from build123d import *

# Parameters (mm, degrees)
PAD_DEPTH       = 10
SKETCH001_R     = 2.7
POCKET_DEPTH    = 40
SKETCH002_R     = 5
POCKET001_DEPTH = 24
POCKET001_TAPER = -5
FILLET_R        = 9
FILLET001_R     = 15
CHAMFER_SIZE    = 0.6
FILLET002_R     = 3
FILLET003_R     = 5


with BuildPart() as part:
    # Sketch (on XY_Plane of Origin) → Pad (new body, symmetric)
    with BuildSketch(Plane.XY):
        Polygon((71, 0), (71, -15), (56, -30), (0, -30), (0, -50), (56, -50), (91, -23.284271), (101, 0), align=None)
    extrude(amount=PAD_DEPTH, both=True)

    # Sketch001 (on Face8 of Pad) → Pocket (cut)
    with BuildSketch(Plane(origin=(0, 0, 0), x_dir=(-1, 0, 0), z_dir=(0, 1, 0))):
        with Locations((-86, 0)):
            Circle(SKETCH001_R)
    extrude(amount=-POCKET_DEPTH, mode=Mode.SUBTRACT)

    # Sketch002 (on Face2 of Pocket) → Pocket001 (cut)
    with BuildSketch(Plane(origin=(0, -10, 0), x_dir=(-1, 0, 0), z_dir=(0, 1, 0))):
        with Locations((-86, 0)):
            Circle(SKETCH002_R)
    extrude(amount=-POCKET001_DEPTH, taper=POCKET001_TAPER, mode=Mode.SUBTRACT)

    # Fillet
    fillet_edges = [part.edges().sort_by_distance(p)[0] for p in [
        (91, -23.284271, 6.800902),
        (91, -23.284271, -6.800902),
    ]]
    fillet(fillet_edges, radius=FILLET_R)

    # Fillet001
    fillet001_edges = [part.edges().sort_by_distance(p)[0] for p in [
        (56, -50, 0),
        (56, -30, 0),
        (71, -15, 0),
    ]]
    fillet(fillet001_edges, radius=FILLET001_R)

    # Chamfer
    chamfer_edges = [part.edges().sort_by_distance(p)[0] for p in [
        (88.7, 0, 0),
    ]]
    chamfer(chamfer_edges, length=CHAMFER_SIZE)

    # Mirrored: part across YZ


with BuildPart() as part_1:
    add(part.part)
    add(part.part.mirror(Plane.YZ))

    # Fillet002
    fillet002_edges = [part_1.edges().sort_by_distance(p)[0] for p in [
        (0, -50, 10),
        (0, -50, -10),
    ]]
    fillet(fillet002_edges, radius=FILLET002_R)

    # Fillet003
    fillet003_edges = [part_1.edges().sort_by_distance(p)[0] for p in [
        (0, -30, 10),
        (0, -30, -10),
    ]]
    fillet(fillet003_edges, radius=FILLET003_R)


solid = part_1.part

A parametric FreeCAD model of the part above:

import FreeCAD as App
import Part
import Sketcher
Q = App.Units.Quantity


def edges_at(feature, points):
    """Names of the edges that pass closest to the given points."""
    edges = feature.Shape.Edges
    near = lambda p: min(range(len(edges)), key=lambda i: edges[i].distToShape(Part.Vertex(*p))[0])
    return sorted({f"Edge{near(p) + 1}" for p in points})


def add_polygon(sketch, points):
    """Adds a closed chain of lines whose ends are joined by coincident constraints."""
    first, n = sketch.GeometryCount, len(points)
    for a, b in zip(points, points[1:] + points[:1]):
        sketch.addGeometry(Part.LineSegment(App.Vector(*a, 0), App.Vector(*b, 0)), False)
    for i in range(n):
        sketch.addConstraint(Sketcher.Constraint("Coincident", first + i, 2, first + (i + 1) % n, 1))

doc = App.newDocument("Part")
body = doc.addObject("PartDesign::Body", "Body")

# Sketch on XY plane
sketch1 = body.newObject("Sketcher::SketchObject", "Sketch")
sketch1.AttachmentSupport = (doc.getObject("XY_Plane"), [""])
sketch1.MapMode = "FlatFace"
add_polygon(sketch1, [(71, 0), (71, -15), (56, -30), (0, -30), (0, -50), (56, -50), (91, -23), (101, 0)])  # lines 0-7
sketch1.addConstraint([
    Sketcher.Constraint("Vertical", 0),
    Sketcher.Constraint("Horizontal", 2),
    Sketcher.Constraint("Vertical", 3),
    Sketcher.Constraint("Horizontal", 4),
    Sketcher.Constraint("Horizontal", 7),
    Sketcher.Constraint("PointOnObject", 2, 2, -2),
    Sketcher.Constraint("PointOnObject", 6, 2, -1),
    Sketcher.Constraint("Vertical", 1, 2, 4, 2),
    Sketcher.Constraint("DistanceX", 2, 2, 2, 1, 56.0),
    Sketcher.Constraint("DistanceX", 7, 2, 7, 1, 30.0),
    Sketcher.Constraint("DistanceY", 0, 2, 0, 1, 15.0),
    Sketcher.Constraint("DistanceY", 3, 2, 3, 1, 20.0),
    Sketcher.Constraint("Angle", 1, Q("-135 deg")),
    Sketcher.Constraint("DistanceX", -1, 1, 0, 2, 71.0),
    Sketcher.Constraint("DistanceX", -1, 1, 5, 2, 91.0),
    Sketcher.Constraint("DistanceY", 5, 2, -1, 1, 23.284271),
])
pad1 = body.newObject("PartDesign::Pad", "Pad")
pad1.Profile = sketch1
pad1.Length = 20
pad1.Midplane = True

# Sketch on XZ plane
sketch2 = body.newObject("Sketcher::SketchObject", "Sketch001")
sketch2.AttachmentSupport = (doc.getObject("XZ_Plane"), [""])
sketch2.MapMode = "FlatFace"
sketch2.addGeometry(Part.Circle(App.Vector(86, 0, 0), App.Vector(0, 0, 1), 2.7), False)
sketch2.addConstraint([
    Sketcher.Constraint("PointOnObject", 0, 3, -1),
    Sketcher.Constraint("Diameter", 0, 5.4),
    Sketcher.Constraint("DistanceX", -1, 1, 0, 3, 86.0),
])
pocket1 = body.newObject("PartDesign::Pocket", "Pocket")
pocket1.Profile = sketch2
pocket1.Length = 40
pocket1.Reversed = True

# Sketch on XZ plane
sketch3 = body.newObject("Sketcher::SketchObject", "Sketch002")
sketch3.AttachmentSupport = (doc.getObject("XZ_Plane"), [""])
sketch3.MapMode = "FlatFace"
sketch3.AttachmentOffset = App.Placement(App.Vector(0, 0, 10), App.Rotation())
sketch3.addGeometry(Part.Circle(App.Vector(86, 0, 0), App.Vector(0, 0, 1), 5), False)
sketch3.addConstraint([
    Sketcher.Constraint("PointOnObject", 0, 3, -1),
    Sketcher.Constraint("Diameter", 0, 10.0),
    Sketcher.Constraint("DistanceX", -1, 1, 0, 3, 86.0),
])
pocket2 = body.newObject("PartDesign::Pocket", "Pocket001")
pocket2.Profile = sketch3
pocket2.Length = 24
pocket2.Reversed = True
pocket2.TaperAngle = 5
doc.recompute()

fillet = body.newObject("PartDesign::Fillet", "Fillet")
fillet.Base = (pocket2, edges_at(pocket2, [(91, -23.284, 6.801), (91, -23.284, -6.801)]))
fillet.Radius = 9
doc.recompute()

fillet2 = body.newObject("PartDesign::Fillet", "Fillet001")
fillet2.Base = (fillet, edges_at(fillet, [(56, -50, 0), (56, -30, 0), (71, -15, 0)]))
fillet2.Radius = 15
doc.recompute()

chamfer = body.newObject("PartDesign::Chamfer", "Chamfer")
chamfer.Base = (fillet2, edges_at(fillet2, [(88.7, 0, 0)]))
chamfer.Size = 0.6
body2 = doc.addObject("PartDesign::Body", "Body001")
doc.recompute()

body2.BaseFeature = body
doc.recompute()

mirroring = doc.addObject("Part::Mirroring", "Mirroring")
mirroring.Source = body
mirroring.Base = App.Vector(0, 0, 0)
mirroring.Normal = App.Vector(1, 0, 0)
body3 = doc.addObject("PartDesign::Body", "Body002")
body3.BaseFeature = mirroring
boolean = body2.newObject("PartDesign::Boolean", "Boolean")
boolean.Type = "Fuse"
boolean.addObjects([body3])
doc.recompute()

fillet3 = body2.newObject("PartDesign::Fillet", "Fillet002")
fillet3.Base = (boolean, edges_at(boolean, [(0, -50, 10), (0, -50, -10)]))
fillet3.Radius = 3
doc.recompute()

fillet4 = body2.newObject("PartDesign::Fillet", "Fillet003")
fillet4.Base = (fillet3, edges_at(fillet3, [(0, -30, 10), (0, -30, -10)]))
fillet4.Radius = 5
mirroring.Visibility = False

doc.recompute()
